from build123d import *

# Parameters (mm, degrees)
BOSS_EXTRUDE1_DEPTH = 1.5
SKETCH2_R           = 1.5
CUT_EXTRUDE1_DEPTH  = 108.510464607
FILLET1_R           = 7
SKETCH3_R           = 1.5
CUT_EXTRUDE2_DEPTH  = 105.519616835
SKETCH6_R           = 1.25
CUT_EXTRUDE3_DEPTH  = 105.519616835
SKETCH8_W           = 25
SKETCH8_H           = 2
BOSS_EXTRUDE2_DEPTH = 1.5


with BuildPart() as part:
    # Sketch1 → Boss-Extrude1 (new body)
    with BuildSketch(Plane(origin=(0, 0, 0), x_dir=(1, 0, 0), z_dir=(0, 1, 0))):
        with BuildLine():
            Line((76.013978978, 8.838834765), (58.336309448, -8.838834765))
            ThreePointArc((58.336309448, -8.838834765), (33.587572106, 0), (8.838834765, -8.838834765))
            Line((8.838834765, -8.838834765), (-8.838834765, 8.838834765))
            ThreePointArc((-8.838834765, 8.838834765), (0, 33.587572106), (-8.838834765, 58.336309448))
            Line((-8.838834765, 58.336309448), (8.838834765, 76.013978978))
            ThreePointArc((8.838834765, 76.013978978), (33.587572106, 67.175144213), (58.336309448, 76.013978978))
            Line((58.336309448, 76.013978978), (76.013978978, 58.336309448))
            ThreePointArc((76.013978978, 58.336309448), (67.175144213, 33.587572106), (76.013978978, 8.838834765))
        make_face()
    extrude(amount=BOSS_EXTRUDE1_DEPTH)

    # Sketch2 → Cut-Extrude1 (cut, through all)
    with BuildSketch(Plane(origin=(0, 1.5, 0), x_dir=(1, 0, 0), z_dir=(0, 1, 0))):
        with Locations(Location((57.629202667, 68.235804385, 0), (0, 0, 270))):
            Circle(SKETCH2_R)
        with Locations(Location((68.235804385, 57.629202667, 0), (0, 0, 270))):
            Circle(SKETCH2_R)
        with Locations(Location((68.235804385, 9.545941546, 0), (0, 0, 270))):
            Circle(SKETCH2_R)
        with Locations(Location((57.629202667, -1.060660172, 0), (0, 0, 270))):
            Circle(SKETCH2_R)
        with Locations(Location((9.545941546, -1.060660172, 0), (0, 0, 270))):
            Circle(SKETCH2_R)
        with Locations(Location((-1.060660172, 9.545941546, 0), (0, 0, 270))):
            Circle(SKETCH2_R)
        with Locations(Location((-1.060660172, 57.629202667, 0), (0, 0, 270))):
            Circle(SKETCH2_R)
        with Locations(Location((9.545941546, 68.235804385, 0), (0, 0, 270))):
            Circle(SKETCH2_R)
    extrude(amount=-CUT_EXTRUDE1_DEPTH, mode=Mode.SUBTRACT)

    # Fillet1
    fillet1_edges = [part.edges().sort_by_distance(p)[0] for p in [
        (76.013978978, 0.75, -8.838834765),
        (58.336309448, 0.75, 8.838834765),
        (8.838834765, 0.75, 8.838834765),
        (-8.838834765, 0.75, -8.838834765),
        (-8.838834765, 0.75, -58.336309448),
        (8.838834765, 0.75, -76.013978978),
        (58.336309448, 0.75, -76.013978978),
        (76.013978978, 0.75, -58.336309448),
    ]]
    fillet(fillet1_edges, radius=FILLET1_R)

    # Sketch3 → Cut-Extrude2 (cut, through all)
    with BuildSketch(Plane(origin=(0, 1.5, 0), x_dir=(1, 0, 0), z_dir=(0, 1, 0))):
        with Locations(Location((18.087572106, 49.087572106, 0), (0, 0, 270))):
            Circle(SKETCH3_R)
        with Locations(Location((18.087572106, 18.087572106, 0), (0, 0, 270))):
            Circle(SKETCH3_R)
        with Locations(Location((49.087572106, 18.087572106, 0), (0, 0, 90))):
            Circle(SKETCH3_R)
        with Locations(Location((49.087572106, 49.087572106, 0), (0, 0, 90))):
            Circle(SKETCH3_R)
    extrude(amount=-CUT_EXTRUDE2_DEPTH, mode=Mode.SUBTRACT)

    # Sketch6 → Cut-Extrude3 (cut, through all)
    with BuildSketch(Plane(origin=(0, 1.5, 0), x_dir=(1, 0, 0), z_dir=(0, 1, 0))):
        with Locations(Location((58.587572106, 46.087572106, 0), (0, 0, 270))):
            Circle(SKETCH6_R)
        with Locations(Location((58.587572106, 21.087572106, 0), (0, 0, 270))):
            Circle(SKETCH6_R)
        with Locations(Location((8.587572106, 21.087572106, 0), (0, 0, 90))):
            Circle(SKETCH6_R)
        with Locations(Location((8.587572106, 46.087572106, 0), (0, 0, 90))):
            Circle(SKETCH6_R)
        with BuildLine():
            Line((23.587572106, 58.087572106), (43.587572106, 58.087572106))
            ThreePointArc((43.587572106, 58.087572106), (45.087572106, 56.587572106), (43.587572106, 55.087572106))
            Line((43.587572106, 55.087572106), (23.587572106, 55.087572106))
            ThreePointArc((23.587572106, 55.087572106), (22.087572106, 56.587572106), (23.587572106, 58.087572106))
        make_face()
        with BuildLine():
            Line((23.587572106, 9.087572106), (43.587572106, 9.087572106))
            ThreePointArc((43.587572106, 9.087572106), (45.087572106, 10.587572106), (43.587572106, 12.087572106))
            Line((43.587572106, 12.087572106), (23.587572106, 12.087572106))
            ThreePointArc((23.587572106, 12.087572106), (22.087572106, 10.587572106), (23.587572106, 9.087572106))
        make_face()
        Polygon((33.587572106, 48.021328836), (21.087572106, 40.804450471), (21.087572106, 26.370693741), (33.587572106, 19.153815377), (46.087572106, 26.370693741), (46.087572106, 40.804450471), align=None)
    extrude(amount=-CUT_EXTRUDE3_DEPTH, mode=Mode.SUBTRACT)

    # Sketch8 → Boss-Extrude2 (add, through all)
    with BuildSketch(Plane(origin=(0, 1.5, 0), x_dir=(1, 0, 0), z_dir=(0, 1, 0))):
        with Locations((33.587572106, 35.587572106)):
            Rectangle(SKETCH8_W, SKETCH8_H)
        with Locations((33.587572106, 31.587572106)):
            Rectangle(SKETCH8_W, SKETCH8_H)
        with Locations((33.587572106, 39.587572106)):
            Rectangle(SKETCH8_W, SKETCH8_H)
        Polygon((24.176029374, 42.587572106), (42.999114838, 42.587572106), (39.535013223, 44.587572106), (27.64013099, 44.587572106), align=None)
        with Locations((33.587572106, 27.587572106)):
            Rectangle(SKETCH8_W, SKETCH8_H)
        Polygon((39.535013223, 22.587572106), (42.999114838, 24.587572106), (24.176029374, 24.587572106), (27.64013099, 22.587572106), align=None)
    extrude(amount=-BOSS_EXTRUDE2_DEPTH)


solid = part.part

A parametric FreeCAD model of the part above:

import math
import FreeCAD as App
import Part
import Sketcher
Q = App.Units.Quantity


def edges_at(feature, points):
    """Names of the edges that pass closest to the given points."""
    edges = feature.Shape.Edges
    near = lambda p: min(range(len(edges)), key=lambda i: edges[i].distToShape(Part.Vertex(*p))[0])
    return sorted({f"Edge{near(p) + 1}" for p in points})


def add_polygon(sketch, points):
    """Adds a closed chain of lines whose ends are joined by coincident constraints."""
    first, n = sketch.GeometryCount, len(points)
    for a, b in zip(points, points[1:] + points[:1]):
        sketch.addGeometry(Part.LineSegment(App.Vector(*a, 0), App.Vector(*b, 0)), False)
    for i in range(n):
        sketch.addConstraint(Sketcher.Constraint("Coincident", first + i, 2, first + (i + 1) % n, 1))

doc = App.newDocument("Part")
params = doc.addObject("Spreadsheet::Sheet", "Params")
for row, (alias, value) in enumerate([
    ("sketch1_length", "25 mm"),
    ("pad1_length", "1.5 mm"),
    ("sketch2_diameter", "3 mm"),
    ("fillet_radius", "7 mm"),
    ("sketch3_diameter", "3 mm"),
    ("sketch4_diameter", "2.5 mm"),
    ("sketch4_radius", "1.5 mm"),
    ("sketch4_width", "20 mm"),
    ("sketch5_width", "25 mm"),
    ("sketch5_height", "2 mm"),
    ("sketch5_length", "4 mm"),
    ("pad2_length", "1.5 mm"),
], start=1):
    params.set(f"A{row}", alias)
    params.set(f"B{row}", "=" + value)
    params.setAlias(f"B{row}", alias)

body = doc.addObject("PartDesign::Body", "Body")

sketch1 = body.newObject("Sketcher::SketchObject", "Sketch")
sketch1.AttachmentSupport = (doc.getObject("XZ_Plane"), [""])
sketch1.MapMode = "FlatFace"
sketch1.addGeometry([
    Part.LineSegment(App.Vector(58, 9, 0), App.Vector(76, -9, 0)),
    Part.ArcOfCircle(Part.Circle(App.Vector(106, -34, 0), App.Vector(0, 0, 1), 39), math.radians(141), math.radians(219)),
    Part.LineSegment(App.Vector(76, -58, 0), App.Vector(58, -76, 0)),
    Part.ArcOfCircle(Part.Circle(App.Vector(34, -106, 0), App.Vector(0, 0, 1), 39), math.radians(51), math.radians(129)),
    Part.LineSegment(App.Vector(9, -76, 0), App.Vector(-9, -58, 0)),
    Part.ArcOfCircle(Part.Circle(App.Vector(-39, -34, 0), App.Vector(0, 0, 1), 39), math.radians(-39), math.radians(39)),
    Part.LineSegment(App.Vector(-9, -9, 0), App.Vector(9, 9, 0)),
    Part.ArcOfCircle(Part.Circle(App.Vector(34, 39, 0), App.Vector(0, 0, 1), 39), math.radians(-129), math.radians(-51)),
], False)
sketch1.addConstraint([
    Sketcher.Constraint("Coincident", 0, 2, 1, 1),
    Sketcher.Constraint("Coincident", 1, 2, 2, 1),
    Sketcher.Constraint("Coincident", 2, 2, 3, 1),
    Sketcher.Constraint("Coincident", 3, 2, 4, 1),
    Sketcher.Constraint("Coincident", 4, 2, 5, 1),
    Sketcher.Constraint("Coincident", 5, 2, 6, 1),
    Sketcher.Constraint("Coincident", 6, 2, 7, 1),
    Sketcher.Constraint("Coincident", 7, 2, 0, 1),
    Sketcher.Constraint("Equal", 1, 3),
    Sketcher.Constraint("Equal", 3, 5),
    Sketcher.Constraint("Equal", 5, 7),
    Sketcher.Constraint("Symmetric", 5, 2, 6, 2, -1, 1),
    Sketcher.Constraint("Perpendicular", 0, 2),
    Sketcher.Constraint("Perpendicular", 2, 4),
    Sketcher.Constraint("Perpendicular", 4, 6),
    Sketcher.Constraint("Horizontal", 1, 3, 5, 3),
    Sketcher.Constraint("Horizontal", 2, 2, 3, 2),
    Sketcher.Constraint("Horizontal", 1, 2, 4, 2),
    Sketcher.Constraint("Horizontal", 0, 2, 5, 2),
    Sketcher.Constraint("Horizontal", 6, 2, 7, 2),
    Sketcher.Constraint("Vertical", 3, 3, 7, 3),
    Sketcher.Constraint("Vertical", 0, 2, 1, 2),
    Sketcher.Constraint("Vertical", 3, 2, 6, 2),
    Sketcher.Constraint("Distance", 0, 25.0),
    Sketcher.Constraint("Radius", 1, 39.06765),
    Sketcher.Constraint("DistanceX", 5, 3, -1, 1, 39.06765),
    Sketcher.Constraint("DistanceY", -1, 1, 7, 3, 39.06765),
])
sketch1.setExpression("Constraints[23]", "Params.sketch1_length")
pad1 = body.newObject("PartDesign::Pad", "Pad")
pad1.Profile = sketch1
pad1.setExpression("Length", "Params.pad1_length")
pad1.Reversed = True

sketch2 = body.newObject("Sketcher::SketchObject", "Sketch001")
sketch2.AttachmentSupport = (doc.getObject("XZ_Plane"), [""])
sketch2.MapMode = "FlatFace"
sketch2.AttachmentOffset = App.Placement(App.Vector(0, 0, -1.5), App.Rotation())
sketch2.addGeometry([
    Part.Circle(App.Vector(57.6, -68.2, 0), App.Vector(0, 0, 1), 1.5),
    Part.Circle(App.Vector(68.2, -57.6, 0), App.Vector(0, 0, 1), 1.5),
    Part.Circle(App.Vector(68.2, -9.5, 0), App.Vector(0, 0, 1), 1.5),
    Part.Circle(App.Vector(57.6, 1.1, 0), App.Vector(0, 0, 1), 1.5),
    Part.Circle(App.Vector(9.5, 1.1, 0), App.Vector(0, 0, 1), 1.5),
    Part.Circle(App.Vector(-1.1, -9.5, 0), App.Vector(0, 0, 1), 1.5),
    Part.Circle(App.Vector(-1.1, -57.6, 0), App.Vector(0, 0, 1), 1.5),
    Part.Circle(App.Vector(9.5, -68.2, 0), App.Vector(0, 0, 1), 1.5),
], False)
sketch2.addConstraint([
    Sketcher.Constraint("Equal", 0, 1),
    Sketcher.Constraint("Equal", 1, 2),
    Sketcher.Constraint("Equal", 2, 3),
    Sketcher.Constraint("Equal", 3, 4),
    Sketcher.Constraint("Equal", 4, 5),
    Sketcher.Constraint("Equal", 5, 6),
    Sketcher.Constraint("Equal", 6, 7),
    Sketcher.Constraint("Horizontal", 3, 3, 4, 3),
    Sketcher.Constraint("Horizontal", 2, 3, 5, 3),
    Sketcher.Constraint("Horizontal", 1, 3, 6, 3),
    Sketcher.Constraint("Horizontal", 0, 3, 7, 3),
    Sketcher.Constraint("Vertical", 1, 3, 2, 3),
    Sketcher.Constraint("Vertical", 0, 3, 3, 3),
    Sketcher.Constraint("Vertical", 5, 3, 6, 3),
    Sketcher.Constraint("Vertical", 4, 3, 7, 3),
    Sketcher.Constraint("Diameter", 0, 3.0),
    Sketcher.Constraint("DistanceX", 0, 3, 1, 3, 10.606602),
    Sketcher.Constraint("DistanceY", 0, 3, 1, 3, 10.606602),
    Sketcher.Constraint("DistanceY", 2, 3, 3, 3, 10.606602),
    Sketcher.Constraint("DistanceX", 5, 3, 4, 3, 10.606602),
    Sketcher.Constraint("DistanceY", 2, 3, -1, 1, 9.545942),
    Sketcher.Constraint("DistanceX", -1, 1, 4, 3, 9.545942),
    Sketcher.Constraint("DistanceY", 1, 3, 2, 3, 48.083261),
    Sketcher.Constraint("DistanceX", 4, 3, 3, 3, 48.083261),
])
sketch2.setExpression("Constraints[15]", "Params.sketch2_diameter")
pocket1 = body.newObject("PartDesign::Pocket", "Pocket")
pocket1.Profile = sketch2
pocket1.Type = "ThroughAll"
pocket1.Reversed = True
doc.recompute()

fillet = body.newObject("PartDesign::Fillet", "Fillet")
fillet.Base = (pocket1, edges_at(pocket1, [
    (76.014, 0.75, -8.839),
    (58.336, 0.75, 8.839),
    (8.839, 0.75, 8.839),
    (-8.839, 0.75, -8.839),
    (-8.839, 0.75, -58.336),
    (8.839, 0.75, -76.014),
    (58.336, 0.75, -76.014),
    (76.014, 0.75, -58.336),
]))
fillet.setExpression("Radius", "Params.fillet_radius")

sketch3 = body.newObject("Sketcher::SketchObject", "Sketch002")
sketch3.AttachmentSupport = (doc.getObject("XZ_Plane"), [""])
sketch3.MapMode = "FlatFace"
sketch3.AttachmentOffset = App.Placement(App.Vector(0, 0, -1.5), App.Rotation())
sketch3.addGeometry([
    Part.Circle(App.Vector(18.1, -49.1, 0), App.Vector(0, 0, 1), 1.5),
    Part.Circle(App.Vector(18.1, -18.1, 0), App.Vector(0, 0, 1), 1.5),
    Part.Circle(App.Vector(49.1, -18.1, 0), App.Vector(0, 0, 1), 1.5),
    Part.Circle(App.Vector(49.1, -49.1, 0), App.Vector(0, 0, 1), 1.5),
], False)
sketch3.addConstraint([
    Sketcher.Constraint("Equal", 0, 1),
    Sketcher.Constraint("Equal", 1, 2),
    Sketcher.Constraint("Equal", 2, 3),
    Sketcher.Constraint("Horizontal", 1, 3, 2, 3),
    Sketcher.Constraint("Horizontal", 0, 3, 3, 3),
    Sketcher.Constraint("Vertical", 0, 3, 1, 3),
    Sketcher.Constraint("Vertical", 2, 3, 3, 3),
    Sketcher.Constraint("Diameter", 0, 3.0),
    Sketcher.Constraint("DistanceY", 0, 3, 1, 3, 31.0),
    Sketcher.Constraint("DistanceX", 1, 3, 2, 3, 31.0),
    Sketcher.Constraint("DistanceX", -1, 1, 0, 3, 18.087572),
    Sketcher.Constraint("DistanceY", 0, 3, -1, 1, 49.087572),
])
sketch3.setExpression("Constraints[7]", "Params.sketch3_diameter")
pocket2 = body.newObject("PartDesign::Pocket", "Pocket001")
pocket2.Profile = sketch3
pocket2.Type = "ThroughAll"
pocket2.Reversed = True

sketch4 = body.newObject("Sketcher::SketchObject", "Sketch003")
sketch4.AttachmentSupport = (doc.getObject("XZ_Plane"), [""])
sketch4.MapMode = "FlatFace"
sketch4.AttachmentOffset = App.Placement(App.Vector(0, 0, -1.5), App.Rotation())
sketch4.addGeometry(Part.Circle(App.Vector(58.6, -46.1, 0), App.Vector(0, 0, 1), 1.2), False)
sketch4.addGeometry(Part.Circle(App.Vector(58.6, -21.1, 0), App.Vector(0, 0, 1), 1.2), False)
sketch4.addGeometry(Part.Circle(App.Vector(8.6, -21.1, 0), App.Vector(0, 0, 1), 1.2), False)
sketch4.addGeometry(Part.Circle(App.Vector(8.6, -46.1, 0), App.Vector(0, 0, 1), 1.2), False)
sketch4.addGeometry(Part.LineSegment(App.Vector(43.6, -58.1, 0), App.Vector(23.6, -58.1, 0)), False)
sketch4.addGeometry(Part.ArcOfCircle(Part.Circle(App.Vector(23.6, -56.6, 0), App.Vector(0, 0, 1), 1.5), math.radians(90), math.radians(270)), False)
sketch4.addGeometry(Part.LineSegment(App.Vector(23.6, -55.1, 0), App.Vector(43.6, -55.1, 0)), False)
sketch4.addGeometry(Part.ArcOfCircle(Part.Circle(App.Vector(43.6, -56.6, 0), App.Vector(0, 0, 1), 1.5), math.radians(-90), math.radians(90)), False)
sketch4.addGeometry(Part.LineSegment(App.Vector(23.6, -9.1, 0), App.Vector(43.6, -9.1, 0)), False)
sketch4.addGeometry(Part.ArcOfCircle(Part.Circle(App.Vector(43.6, -10.6, 0), App.Vector(0, 0, 1), 1.5), math.radians(-90), math.radians(90)), False)
sketch4.addGeometry(Part.LineSegment(App.Vector(43.6, -12.1, 0), App.Vector(23.6, -12.1, 0)), False)
sketch4.addGeometry(Part.ArcOfCircle(Part.Circle(App.Vector(23.6, -10.6, 0), App.Vector(0, 0, 1), 1.5), math.radians(90), math.radians(270)), False)
add_polygon(sketch4, [(33.6, -48), (21.1, -40.8), (21.1, -26.4), (33.6, -19.2), (46.1, -26.4), (46.1, -40.8)])
sketch4.addConstraint([
    Sketcher.Constraint("Tangent", 4, 2, 5, 2),
    Sketcher.Constraint("Tangent", 5, 1, 6, 1),
    Sketcher.Constraint("Tangent", 6, 2, 7, 2),
    Sketcher.Constraint("Tangent", 7, 1, 4, 1),
    Sketcher.Constraint("Tangent", 8, 2, 9, 2),
    Sketcher.Constraint("Tangent", 9, 1, 10, 1),
    Sketcher.Constraint("Tangent", 10, 2, 11, 2),
    Sketcher.Constraint("Tangent", 11, 1, 8, 1),
    Sketcher.Constraint("Horizontal", 4),
    Sketcher.Constraint("Horizontal", 6),
    Sketcher.Constraint("Horizontal", 8),
    Sketcher.Constraint("Horizontal", 10),
    Sketcher.Constraint("Vertical", 13),
    Sketcher.Constraint("Vertical", 16),
    Sketcher.Constraint("Equal", 0, 1),
    Sketcher.Constraint("Equal", 1, 2),
    Sketcher.Constraint("Equal", 2, 3),
    Sketcher.Constraint("Equal", 7, 9),
    Sketcher.Constraint("Parallel", 12, 15),
    Sketcher.Constraint("Parallel", 14, 17),
    Sketcher.Constraint("Horizontal", 1, 3, 2, 3),
    Sketcher.Constraint("Horizontal", 0, 3, 3, 3),
    Sketcher.Constraint("Horizontal", 13, 2, 15, 2),
    Sketcher.Constraint("Horizontal", 12, 2, 16, 2),
    Sketcher.Constraint("Vertical", 0, 3, 1, 3),
    Sketcher.Constraint("Vertical", 2, 3, 3, 3),
    Sketcher.Constraint("Vertical", 7, 3, 9, 3),
    Sketcher.Constraint("Vertical", 5, 3, 11, 3),
    Sketcher.Constraint("Vertical", 14, 2, 17, 2),
    Sketcher.Constraint("Diameter", 0, 2.5),
    Sketcher.Constraint("Radius", 5, 1.5),
    Sketcher.Constraint("DistanceX", 4, 2, 4, 1, 20.0),
    Sketcher.Constraint("Angle", 12, Q("150 deg")),
    Sketcher.Constraint("DistanceY", 0, 3, 1, 3, 25.0),
    Sketcher.Constraint("DistanceX", 2, 3, 1, 3, 50.0),
    Sketcher.Constraint("DistanceX", 3, 3, 5, 3, 15.0),
    Sketcher.Constraint("DistanceY", 7, 3, 9, 3, 46.0),
    Sketcher.Constraint("DistanceY", 4, 2, 3, 3, 12.0),
    Sketcher.Constraint("DistanceX", 14, 2, 9, 1, 10.0),
    Sketcher.Constraint("DistanceX", 3, 3, 12, 2, 12.5),
    Sketcher.Constraint("DistanceY", 13, 1, 13, 2, 14.433757),
    Sketcher.Constraint("DistanceY", 12, 2, -1, 1, 40.80445),
    Sketcher.Constraint("DistanceY", 3, 3, 12, 2, 5.283122),
    Sketcher.Constraint("DistanceX", -1, 1, 0, 3, 58.587572),
])
sketch4.setExpression("Constraints[35]", "Params.sketch4_diameter")
sketch4.setExpression("Constraints[36]", "Params.sketch4_radius")
sketch4.setExpression("Constraints[37]", "Params.sketch4_width")
pocket3 = body.newObject("PartDesign::Pocket", "Pocket002")
pocket3.Profile = sketch4
pocket3.Type = "ThroughAll"
pocket3.Reversed = True

sketch5 = body.newObject("Sketcher::SketchObject", "Sketch004")
sketch5.AttachmentSupport = (doc.getObject("XZ_Plane"), [""])
sketch5.MapMode = "FlatFace"
sketch5.AttachmentOffset = App.Placement(App.Vector(0, 0, -1.5), App.Rotation())
add_polygon(sketch5, [(21.1, -36.6), (21.1, -34.6), (46.1, -34.6), (46.1, -36.6)])
add_polygon(sketch5, [(21.1, -32.6), (21.1, -30.6), (46.1, -30.6), (46.1, -32.6)])
add_polygon(sketch5, [(21.1, -40.6), (21.1, -38.6), (46.1, -38.6), (46.1, -40.6)])
add_polygon(sketch5, [(24.2, -42.6), (43, -42.6), (39.5, -44.6), (27.6, -44.6)])
add_polygon(sketch5, [(21.1, -28.6), (21.1, -26.6), (46.1, -26.6), (46.1, -28.6)])
add_polygon(sketch5, [(39.5, -22.6), (43, -24.6), (24.2, -24.6), (27.6, -22.6)])
sketch5.addConstraint([
    Sketcher.Constraint("Vertical", 0),
    Sketcher.Constraint("Horizontal", 1),
    Sketcher.Constraint("Vertical", 2),
    Sketcher.Constraint("Horizontal", 3),
    Sketcher.Constraint("Vertical", 4),
    Sketcher.Constraint("Horizontal", 5),
    Sketcher.Constraint("Vertical", 6),
    Sketcher.Constraint("Horizontal", 7),
    Sketcher.Constraint("Vertical", 8),
    Sketcher.Constraint("Horizontal", 9),
    Sketcher.Constraint("Vertical", 10),
    Sketcher.Constraint("Horizontal", 11),
    Sketcher.Constraint("Horizontal", 12),
    Sketcher.Constraint("Horizontal", 14),
    Sketcher.Constraint("Vertical", 16),
    Sketcher.Constraint("Horizontal", 17),
    Sketcher.Constraint("Vertical", 18),
    Sketcher.Constraint("Horizontal", 19),
    Sketcher.Constraint("Horizontal", 21),
    Sketcher.Constraint("Horizontal", 23),
    Sketcher.Constraint("Parallel", 15, 20),
    Sketcher.Constraint("Parallel", 13, 22),
    Sketcher.Constraint("Vertical", 3, 2, 4, 2),
    Sketcher.Constraint("Vertical", 2, 2, 5, 2),
    Sketcher.Constraint("Vertical", 7, 2, 8, 2),
    Sketcher.Constraint("Vertical", 6, 2, 9, 2),
    Sketcher.Constraint("Vertical", 11, 2, 16, 2),
    Sketcher.Constraint("Vertical", 10, 2, 17, 2),
    Sketcher.Constraint("Vertical", 12, 2, 20, 2),
    Sketcher.Constraint("Vertical", 15, 2, 21, 2),
    Sketcher.Constraint("Vertical", 14, 2, 22, 2),
    Sketcher.Constraint("Vertical", 13, 2, 23, 2),
    Sketcher.Constraint("Equal", 2, 4),
    Sketcher.Constraint("Equal", 6, 8),
    Sketcher.Constraint("Equal", 10, 16),
    Sketcher.Constraint("DistanceX", 1, 1, 1, 2, 25.0),
    Sketcher.Constraint("DistanceY", 0, 1, 0, 2, 2.0),
    Sketcher.Constraint("Angle", 13, Q("-150 deg")),
    Sketcher.Constraint("Distance", 13, 4.0),
    Sketcher.Constraint("DistanceY", 0, 2, 4, 2, 4.0),
    Sketcher.Constraint("DistanceY", 8, 2, 3, 2, 2.0),
    Sketcher.Constraint("DistanceY", 12, 2, 10, 2, 2.0),
    Sketcher.Constraint("DistanceY", 4, 2, 16, 2, 4.0),
    Sketcher.Constraint("DistanceY", 17, 2, 20, 2, 2.0),
    Sketcher.Constraint("DistanceX", 12, 1, 12, 2, 18.823085),
    Sketcher.Constraint("DistanceX", -1, 1, 14, 2, 27.640131),
    Sketcher.Constraint("DistanceX", 13, 2, 10, 2, 6.552559),
    Sketcher.Constraint("DistanceY", 0, 2, -1, 1, 34.587572),
])
sketch5.setExpression("Constraints[59]", "Params.sketch5_width")
sketch5.setExpression("Constraints[60]", "Params.sketch5_height")
sketch5.setExpression("Constraints[62]", "Params.sketch5_length")
pad2 = body.newObject("PartDesign::Pad", "Pad001")
pad2.Profile = sketch5
pad2.setExpression("Length", "Params.pad2_length")

doc.recompute()
